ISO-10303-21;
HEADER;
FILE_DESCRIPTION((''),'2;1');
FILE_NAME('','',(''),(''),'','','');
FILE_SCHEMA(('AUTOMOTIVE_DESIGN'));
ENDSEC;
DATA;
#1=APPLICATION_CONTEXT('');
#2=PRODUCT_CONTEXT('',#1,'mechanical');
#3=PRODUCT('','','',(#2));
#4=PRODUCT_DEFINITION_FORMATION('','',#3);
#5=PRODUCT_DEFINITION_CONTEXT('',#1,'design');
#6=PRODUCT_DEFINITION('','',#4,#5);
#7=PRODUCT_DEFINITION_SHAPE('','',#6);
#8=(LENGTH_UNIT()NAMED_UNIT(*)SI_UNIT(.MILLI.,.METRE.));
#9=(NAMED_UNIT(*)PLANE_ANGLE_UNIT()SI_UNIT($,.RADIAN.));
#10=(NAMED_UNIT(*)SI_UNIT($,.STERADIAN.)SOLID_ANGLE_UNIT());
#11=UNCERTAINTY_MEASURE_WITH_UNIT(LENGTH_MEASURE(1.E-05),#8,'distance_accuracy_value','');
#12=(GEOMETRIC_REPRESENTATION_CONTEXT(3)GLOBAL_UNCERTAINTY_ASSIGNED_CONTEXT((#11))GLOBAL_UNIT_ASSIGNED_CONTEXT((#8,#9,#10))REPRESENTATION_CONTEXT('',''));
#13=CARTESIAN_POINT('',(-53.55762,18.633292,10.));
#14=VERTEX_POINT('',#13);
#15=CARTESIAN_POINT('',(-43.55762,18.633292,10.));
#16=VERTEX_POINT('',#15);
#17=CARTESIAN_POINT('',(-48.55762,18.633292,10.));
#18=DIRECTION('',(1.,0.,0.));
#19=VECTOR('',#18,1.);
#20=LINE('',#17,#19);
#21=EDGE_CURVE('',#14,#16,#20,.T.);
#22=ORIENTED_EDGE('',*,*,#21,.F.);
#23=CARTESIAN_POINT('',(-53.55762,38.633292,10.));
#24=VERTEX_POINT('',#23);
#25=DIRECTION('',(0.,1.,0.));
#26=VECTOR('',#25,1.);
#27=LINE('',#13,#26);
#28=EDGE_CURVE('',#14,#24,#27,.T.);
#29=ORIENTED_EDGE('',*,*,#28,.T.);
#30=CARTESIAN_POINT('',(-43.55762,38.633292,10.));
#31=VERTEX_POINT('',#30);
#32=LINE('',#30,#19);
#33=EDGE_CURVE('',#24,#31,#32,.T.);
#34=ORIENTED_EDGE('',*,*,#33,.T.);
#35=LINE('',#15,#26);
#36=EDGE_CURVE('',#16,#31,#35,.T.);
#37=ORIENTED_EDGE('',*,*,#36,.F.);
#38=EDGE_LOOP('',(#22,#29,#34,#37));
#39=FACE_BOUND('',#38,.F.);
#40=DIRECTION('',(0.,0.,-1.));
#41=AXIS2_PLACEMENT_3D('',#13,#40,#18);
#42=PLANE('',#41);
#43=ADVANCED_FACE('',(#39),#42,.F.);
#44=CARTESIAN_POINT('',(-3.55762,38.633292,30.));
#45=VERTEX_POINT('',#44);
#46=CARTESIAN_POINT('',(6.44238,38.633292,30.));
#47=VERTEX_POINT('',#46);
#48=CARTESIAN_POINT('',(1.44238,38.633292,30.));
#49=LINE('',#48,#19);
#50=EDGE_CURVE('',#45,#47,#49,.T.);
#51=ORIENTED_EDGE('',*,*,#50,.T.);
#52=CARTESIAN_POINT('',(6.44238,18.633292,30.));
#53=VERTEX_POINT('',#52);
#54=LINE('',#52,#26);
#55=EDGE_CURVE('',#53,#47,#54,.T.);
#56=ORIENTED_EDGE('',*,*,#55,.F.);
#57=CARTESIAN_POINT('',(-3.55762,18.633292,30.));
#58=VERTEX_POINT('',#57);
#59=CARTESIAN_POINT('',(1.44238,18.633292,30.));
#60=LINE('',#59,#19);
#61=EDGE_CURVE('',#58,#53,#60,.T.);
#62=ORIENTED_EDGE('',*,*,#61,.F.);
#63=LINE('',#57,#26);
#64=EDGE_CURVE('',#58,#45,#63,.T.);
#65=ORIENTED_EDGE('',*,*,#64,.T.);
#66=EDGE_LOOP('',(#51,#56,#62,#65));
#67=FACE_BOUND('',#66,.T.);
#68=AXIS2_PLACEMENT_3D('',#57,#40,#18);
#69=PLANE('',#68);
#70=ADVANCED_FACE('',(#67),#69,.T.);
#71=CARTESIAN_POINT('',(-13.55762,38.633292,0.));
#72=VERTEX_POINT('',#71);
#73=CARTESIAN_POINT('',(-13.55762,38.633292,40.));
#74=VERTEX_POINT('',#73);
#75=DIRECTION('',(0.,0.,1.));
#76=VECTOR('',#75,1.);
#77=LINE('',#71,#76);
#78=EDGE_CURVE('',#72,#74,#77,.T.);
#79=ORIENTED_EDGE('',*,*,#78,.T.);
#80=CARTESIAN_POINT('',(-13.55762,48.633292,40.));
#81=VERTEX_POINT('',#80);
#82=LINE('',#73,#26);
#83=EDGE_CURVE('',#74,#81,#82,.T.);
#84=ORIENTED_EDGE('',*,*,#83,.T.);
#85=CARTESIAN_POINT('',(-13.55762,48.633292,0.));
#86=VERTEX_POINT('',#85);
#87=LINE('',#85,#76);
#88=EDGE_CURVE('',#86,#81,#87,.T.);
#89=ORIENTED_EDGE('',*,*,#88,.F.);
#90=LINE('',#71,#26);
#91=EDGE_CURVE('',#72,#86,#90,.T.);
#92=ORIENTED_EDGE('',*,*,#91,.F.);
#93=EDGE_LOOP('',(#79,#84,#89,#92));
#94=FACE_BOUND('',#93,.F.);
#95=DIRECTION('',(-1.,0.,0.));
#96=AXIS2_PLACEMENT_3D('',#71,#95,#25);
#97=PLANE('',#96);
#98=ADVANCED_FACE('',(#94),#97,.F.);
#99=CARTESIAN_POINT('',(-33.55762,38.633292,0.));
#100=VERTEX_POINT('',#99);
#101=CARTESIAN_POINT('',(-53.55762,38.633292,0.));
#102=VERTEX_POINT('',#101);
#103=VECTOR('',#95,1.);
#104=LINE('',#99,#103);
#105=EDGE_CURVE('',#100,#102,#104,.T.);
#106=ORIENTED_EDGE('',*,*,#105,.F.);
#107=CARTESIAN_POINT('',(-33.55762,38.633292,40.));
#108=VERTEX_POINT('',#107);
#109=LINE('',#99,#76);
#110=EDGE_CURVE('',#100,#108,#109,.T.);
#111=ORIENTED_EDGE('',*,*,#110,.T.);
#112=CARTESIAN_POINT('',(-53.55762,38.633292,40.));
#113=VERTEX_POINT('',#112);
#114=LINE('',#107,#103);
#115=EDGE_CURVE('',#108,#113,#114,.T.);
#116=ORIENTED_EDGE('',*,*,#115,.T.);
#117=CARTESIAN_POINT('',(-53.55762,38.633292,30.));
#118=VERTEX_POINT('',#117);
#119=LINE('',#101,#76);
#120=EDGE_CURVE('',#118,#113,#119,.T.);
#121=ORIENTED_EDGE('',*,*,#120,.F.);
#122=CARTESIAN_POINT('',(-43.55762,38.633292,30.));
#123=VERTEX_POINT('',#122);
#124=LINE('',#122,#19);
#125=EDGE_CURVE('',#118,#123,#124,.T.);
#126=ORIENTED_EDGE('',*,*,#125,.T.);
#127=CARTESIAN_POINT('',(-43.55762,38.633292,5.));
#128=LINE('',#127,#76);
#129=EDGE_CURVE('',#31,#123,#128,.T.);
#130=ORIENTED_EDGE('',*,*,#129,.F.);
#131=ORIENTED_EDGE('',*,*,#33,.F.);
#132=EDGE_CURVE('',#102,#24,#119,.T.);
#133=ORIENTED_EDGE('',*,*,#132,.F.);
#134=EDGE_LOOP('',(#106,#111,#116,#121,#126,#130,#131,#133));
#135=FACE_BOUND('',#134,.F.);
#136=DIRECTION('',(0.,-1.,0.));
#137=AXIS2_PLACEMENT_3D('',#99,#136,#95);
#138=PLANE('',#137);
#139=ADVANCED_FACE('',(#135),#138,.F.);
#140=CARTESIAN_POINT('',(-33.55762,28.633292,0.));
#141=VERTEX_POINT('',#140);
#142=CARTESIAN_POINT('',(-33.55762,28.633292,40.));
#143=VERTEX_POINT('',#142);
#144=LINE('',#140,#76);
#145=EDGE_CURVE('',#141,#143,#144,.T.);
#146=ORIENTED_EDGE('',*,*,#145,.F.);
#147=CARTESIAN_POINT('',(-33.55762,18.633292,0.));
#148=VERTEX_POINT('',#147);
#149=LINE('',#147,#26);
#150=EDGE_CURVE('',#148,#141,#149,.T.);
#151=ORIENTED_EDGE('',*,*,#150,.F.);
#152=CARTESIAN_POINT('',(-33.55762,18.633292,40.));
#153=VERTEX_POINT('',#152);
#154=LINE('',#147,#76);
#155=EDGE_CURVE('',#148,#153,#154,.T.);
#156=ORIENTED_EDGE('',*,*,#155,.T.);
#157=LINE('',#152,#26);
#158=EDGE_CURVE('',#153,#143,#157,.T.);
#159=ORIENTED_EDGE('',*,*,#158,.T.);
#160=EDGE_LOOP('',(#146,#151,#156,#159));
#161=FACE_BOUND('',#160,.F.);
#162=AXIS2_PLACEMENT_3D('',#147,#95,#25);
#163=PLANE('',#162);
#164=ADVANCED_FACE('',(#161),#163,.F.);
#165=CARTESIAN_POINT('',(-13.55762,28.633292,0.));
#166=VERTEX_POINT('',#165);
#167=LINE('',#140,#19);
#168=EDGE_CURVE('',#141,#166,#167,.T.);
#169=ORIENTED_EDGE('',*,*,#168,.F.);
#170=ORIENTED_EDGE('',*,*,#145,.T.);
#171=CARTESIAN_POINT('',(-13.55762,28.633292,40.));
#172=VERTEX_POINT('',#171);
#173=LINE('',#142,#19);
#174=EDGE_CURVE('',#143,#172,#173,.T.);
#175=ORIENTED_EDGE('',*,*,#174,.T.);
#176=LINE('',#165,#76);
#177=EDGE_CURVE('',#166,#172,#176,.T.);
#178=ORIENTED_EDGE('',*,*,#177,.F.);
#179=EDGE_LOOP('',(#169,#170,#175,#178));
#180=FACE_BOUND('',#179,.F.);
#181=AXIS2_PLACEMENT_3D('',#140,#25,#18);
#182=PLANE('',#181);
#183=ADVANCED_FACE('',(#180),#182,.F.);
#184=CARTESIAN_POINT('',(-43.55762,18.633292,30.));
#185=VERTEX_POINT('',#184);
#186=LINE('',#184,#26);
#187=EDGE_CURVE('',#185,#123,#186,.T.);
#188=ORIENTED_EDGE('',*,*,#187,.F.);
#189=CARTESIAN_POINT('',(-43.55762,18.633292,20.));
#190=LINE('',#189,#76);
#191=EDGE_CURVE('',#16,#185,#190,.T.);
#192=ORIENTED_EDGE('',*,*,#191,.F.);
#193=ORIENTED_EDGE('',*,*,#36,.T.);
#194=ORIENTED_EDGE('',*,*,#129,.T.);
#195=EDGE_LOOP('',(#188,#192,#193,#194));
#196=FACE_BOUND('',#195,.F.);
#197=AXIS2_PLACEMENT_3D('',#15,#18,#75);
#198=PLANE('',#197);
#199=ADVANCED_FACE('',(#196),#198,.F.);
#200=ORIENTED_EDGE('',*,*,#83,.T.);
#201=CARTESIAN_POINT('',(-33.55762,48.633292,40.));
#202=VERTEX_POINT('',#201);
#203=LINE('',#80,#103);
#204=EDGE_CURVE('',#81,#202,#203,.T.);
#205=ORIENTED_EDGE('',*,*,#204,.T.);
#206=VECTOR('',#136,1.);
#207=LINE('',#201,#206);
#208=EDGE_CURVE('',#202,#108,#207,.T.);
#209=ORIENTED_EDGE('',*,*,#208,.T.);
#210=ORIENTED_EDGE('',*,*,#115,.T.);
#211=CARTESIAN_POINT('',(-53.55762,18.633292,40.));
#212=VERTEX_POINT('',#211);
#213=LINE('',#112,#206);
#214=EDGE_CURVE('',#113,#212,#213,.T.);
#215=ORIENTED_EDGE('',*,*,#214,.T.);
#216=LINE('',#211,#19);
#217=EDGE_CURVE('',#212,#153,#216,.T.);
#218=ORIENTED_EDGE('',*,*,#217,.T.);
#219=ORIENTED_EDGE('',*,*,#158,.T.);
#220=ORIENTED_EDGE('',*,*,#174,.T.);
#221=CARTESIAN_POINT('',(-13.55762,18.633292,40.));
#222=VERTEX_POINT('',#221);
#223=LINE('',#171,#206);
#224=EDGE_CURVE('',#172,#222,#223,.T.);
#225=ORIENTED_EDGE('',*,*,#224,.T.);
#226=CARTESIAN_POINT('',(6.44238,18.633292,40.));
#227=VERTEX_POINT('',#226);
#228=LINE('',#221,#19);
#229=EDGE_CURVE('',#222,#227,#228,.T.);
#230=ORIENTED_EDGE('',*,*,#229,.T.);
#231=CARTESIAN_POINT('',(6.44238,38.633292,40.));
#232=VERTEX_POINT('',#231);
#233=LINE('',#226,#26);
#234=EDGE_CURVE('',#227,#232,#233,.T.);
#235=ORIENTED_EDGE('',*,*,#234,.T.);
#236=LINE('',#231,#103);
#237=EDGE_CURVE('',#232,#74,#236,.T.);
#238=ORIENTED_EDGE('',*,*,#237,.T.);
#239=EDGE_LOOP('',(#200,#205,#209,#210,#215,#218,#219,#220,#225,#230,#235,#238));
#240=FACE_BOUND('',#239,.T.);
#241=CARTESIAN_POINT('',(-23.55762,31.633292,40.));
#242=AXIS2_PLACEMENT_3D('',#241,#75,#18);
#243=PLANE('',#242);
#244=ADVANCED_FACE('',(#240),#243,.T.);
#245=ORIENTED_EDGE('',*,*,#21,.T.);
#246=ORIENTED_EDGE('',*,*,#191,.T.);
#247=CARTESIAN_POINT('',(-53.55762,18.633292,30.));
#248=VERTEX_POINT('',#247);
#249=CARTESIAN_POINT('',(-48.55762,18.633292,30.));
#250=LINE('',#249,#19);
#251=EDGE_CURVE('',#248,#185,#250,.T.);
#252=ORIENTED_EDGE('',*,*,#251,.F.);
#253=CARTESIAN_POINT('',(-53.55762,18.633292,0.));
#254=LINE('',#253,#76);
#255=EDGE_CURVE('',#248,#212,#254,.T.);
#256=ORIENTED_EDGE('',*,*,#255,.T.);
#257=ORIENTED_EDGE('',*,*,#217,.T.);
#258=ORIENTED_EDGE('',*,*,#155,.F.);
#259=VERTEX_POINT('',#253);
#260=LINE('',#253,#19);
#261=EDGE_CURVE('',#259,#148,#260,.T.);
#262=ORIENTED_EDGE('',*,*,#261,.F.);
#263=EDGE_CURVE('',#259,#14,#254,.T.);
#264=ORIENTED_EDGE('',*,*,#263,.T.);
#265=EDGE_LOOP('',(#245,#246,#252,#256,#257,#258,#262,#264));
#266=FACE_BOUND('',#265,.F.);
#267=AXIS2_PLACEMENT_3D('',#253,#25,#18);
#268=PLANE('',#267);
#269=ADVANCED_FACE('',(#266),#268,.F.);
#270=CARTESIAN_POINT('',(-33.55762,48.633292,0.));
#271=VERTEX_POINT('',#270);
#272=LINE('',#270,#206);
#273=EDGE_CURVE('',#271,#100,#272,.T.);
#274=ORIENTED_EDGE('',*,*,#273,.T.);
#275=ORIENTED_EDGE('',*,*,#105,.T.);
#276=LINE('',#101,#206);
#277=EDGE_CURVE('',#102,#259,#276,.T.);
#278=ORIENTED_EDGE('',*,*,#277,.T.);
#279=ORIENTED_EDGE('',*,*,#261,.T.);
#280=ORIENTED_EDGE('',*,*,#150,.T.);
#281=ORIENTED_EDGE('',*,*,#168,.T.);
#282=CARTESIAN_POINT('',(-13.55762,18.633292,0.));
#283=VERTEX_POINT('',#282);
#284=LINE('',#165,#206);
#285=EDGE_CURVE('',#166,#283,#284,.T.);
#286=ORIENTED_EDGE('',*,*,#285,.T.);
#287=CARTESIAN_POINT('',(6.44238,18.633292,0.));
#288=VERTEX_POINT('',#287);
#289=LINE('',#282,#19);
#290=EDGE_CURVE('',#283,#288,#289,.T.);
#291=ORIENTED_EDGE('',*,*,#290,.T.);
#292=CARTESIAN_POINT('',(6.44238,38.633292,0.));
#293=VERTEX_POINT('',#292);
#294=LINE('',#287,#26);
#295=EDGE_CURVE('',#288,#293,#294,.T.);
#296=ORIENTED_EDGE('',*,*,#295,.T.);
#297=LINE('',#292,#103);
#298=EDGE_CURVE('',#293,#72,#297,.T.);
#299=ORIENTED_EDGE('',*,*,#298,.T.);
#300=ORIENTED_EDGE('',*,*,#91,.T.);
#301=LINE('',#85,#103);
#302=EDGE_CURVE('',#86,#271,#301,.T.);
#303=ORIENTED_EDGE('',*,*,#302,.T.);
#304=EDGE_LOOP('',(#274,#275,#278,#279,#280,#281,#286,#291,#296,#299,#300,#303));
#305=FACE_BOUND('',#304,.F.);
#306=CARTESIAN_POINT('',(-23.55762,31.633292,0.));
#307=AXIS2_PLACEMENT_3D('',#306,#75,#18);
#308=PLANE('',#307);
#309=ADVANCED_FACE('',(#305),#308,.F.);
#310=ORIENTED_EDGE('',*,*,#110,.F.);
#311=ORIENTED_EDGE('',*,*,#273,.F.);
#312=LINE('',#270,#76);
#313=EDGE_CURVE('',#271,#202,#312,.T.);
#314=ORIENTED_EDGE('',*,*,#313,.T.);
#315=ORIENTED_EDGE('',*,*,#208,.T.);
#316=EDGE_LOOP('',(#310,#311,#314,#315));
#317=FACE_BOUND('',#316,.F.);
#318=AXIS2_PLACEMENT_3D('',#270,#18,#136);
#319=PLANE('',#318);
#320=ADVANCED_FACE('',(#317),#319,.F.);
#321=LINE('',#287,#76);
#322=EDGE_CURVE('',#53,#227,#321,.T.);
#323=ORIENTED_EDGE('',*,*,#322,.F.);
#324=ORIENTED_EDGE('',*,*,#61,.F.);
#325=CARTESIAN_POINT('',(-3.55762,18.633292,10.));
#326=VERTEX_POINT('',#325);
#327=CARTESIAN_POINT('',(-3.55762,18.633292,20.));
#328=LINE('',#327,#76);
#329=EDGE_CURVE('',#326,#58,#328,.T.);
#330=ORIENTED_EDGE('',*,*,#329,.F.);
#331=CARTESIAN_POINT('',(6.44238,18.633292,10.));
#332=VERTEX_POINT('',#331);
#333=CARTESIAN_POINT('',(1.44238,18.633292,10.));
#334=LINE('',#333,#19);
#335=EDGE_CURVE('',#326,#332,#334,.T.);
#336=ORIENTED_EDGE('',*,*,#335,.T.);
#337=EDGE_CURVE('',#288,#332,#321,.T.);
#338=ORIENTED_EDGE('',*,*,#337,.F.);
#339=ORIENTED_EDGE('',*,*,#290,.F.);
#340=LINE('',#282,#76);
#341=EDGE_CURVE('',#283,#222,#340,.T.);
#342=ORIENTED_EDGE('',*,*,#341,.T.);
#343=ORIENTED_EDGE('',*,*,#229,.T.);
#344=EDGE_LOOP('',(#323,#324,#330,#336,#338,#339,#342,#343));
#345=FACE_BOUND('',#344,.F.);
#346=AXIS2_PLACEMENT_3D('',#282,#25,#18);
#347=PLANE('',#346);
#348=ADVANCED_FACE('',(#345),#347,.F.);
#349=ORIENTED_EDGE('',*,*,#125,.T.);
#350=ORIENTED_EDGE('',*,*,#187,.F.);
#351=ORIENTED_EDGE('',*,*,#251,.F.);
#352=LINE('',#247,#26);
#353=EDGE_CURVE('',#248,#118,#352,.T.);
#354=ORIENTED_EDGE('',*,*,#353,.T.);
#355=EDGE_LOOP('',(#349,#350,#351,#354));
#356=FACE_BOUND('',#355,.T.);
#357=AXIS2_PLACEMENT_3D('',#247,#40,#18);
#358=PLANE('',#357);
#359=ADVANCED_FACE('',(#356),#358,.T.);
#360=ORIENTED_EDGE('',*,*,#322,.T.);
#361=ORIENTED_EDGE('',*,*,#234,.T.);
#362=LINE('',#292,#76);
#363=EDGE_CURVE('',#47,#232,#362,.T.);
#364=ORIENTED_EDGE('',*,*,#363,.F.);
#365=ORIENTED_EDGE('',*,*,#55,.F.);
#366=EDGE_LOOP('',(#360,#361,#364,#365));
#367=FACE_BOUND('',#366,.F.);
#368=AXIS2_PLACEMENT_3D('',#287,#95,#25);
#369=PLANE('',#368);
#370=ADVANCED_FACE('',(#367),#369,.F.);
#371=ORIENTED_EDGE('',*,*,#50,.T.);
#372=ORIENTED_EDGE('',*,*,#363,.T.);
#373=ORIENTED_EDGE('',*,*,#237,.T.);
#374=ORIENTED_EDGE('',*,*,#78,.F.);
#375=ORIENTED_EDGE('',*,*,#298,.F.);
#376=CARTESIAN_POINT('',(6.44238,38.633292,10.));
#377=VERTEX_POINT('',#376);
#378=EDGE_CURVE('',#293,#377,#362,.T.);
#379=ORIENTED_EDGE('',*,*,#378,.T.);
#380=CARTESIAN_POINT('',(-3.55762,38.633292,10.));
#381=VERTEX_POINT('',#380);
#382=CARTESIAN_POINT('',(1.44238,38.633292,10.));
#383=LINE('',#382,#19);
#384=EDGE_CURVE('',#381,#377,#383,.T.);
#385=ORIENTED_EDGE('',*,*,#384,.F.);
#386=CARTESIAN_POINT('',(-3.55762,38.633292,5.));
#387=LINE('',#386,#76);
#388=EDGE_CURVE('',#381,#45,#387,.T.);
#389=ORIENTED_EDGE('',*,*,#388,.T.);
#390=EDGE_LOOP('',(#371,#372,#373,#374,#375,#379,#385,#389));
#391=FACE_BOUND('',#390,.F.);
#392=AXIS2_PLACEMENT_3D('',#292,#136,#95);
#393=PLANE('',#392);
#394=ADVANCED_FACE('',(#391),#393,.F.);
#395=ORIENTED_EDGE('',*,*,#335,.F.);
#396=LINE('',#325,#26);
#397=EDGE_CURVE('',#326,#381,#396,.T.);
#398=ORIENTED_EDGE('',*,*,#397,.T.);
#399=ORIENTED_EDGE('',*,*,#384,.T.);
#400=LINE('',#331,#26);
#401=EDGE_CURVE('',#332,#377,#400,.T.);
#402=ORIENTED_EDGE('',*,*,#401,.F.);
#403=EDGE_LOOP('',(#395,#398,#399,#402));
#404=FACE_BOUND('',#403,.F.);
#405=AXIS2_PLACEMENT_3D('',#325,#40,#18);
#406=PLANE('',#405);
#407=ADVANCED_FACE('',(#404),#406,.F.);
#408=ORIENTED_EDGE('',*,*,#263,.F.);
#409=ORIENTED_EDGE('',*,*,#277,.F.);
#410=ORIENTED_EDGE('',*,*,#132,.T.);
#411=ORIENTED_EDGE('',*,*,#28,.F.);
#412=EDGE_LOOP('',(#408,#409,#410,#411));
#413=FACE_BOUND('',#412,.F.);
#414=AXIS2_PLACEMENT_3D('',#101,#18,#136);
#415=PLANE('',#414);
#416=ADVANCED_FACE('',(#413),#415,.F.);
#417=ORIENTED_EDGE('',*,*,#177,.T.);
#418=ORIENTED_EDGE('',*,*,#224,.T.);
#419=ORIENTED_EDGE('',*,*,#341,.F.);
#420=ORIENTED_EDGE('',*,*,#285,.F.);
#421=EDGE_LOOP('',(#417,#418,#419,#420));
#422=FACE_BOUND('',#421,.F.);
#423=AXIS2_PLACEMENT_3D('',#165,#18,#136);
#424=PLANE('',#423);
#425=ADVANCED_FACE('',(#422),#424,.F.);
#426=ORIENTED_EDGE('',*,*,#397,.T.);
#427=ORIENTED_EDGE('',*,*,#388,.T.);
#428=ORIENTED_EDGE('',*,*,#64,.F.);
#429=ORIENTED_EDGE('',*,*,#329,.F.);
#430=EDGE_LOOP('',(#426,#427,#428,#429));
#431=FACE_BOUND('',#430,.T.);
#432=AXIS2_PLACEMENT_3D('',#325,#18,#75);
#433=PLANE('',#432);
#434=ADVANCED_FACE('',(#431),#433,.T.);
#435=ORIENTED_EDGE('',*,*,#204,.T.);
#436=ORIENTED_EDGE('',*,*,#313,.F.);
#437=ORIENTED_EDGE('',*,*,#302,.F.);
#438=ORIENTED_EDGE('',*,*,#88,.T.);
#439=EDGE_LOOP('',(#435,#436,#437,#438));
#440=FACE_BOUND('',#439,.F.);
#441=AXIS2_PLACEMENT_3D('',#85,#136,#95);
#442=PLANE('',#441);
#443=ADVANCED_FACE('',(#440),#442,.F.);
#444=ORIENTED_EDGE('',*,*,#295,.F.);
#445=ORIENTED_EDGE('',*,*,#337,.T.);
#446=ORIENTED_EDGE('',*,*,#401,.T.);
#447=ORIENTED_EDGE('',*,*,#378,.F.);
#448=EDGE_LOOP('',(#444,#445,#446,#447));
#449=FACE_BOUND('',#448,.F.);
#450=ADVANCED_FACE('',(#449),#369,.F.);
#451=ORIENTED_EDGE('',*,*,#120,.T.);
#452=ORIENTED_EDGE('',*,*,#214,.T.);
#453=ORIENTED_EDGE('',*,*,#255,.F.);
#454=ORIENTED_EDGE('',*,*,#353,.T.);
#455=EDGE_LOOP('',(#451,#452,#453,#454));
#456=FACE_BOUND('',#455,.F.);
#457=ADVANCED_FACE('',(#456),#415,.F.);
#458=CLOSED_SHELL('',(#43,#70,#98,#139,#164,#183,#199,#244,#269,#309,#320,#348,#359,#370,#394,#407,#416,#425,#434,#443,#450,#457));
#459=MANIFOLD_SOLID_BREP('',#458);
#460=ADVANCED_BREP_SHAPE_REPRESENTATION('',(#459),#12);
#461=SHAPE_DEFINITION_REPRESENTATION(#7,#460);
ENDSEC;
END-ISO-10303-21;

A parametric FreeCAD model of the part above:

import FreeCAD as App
import Part
import Sketcher

V = App.Vector
Q = App.Units.Quantity

doc = App.newDocument("Part")
body = doc.addObject("PartDesign::Body", "Body")

sketch1 = body.newObject("Sketcher::SketchObject", "Sketch")
sketch1.AttachmentSupport = (doc.getObject("XY_Plane"), [""])
sketch1.MapMode = "FlatFace"
sketch1.addGeometry([
    Part.LineSegment(V(-34, 39, 0), V(-54, 39, 0)),
    Part.LineSegment(V(-54, 39, 0), V(-54, 19, 0)),
    Part.LineSegment(V(-54, 19, 0), V(-34, 19, 0)),
    Part.LineSegment(V(-34, 19, 0), V(-34, 29, 0)),
    Part.LineSegment(V(-34, 29, 0), V(-14, 29, 0)),
    Part.LineSegment(V(-14, 29, 0), V(-14, 19, 0)),
    Part.LineSegment(V(-14, 19, 0), V(6, 19, 0)),
    Part.LineSegment(V(6, 19, 0), V(6, 39, 0)),
    Part.LineSegment(V(6, 39, 0), V(-14, 39, 0)),
    Part.LineSegment(V(-14, 39, 0), V(-14, 49, 0)),
    Part.LineSegment(V(-14, 49, 0), V(-34, 49, 0)),
    Part.LineSegment(V(-34, 49, 0), V(-34, 39, 0)),
], False)
sketch1.addConstraint([
    Sketcher.Constraint("Coincident", 0, 2, 1, 1),
    Sketcher.Constraint("Coincident", 1, 2, 2, 1),
    Sketcher.Constraint("Coincident", 2, 2, 3, 1),
    Sketcher.Constraint("Coincident", 3, 2, 4, 1),
    Sketcher.Constraint("Coincident", 4, 2, 5, 1),
    Sketcher.Constraint("Coincident", 5, 2, 6, 1),
    Sketcher.Constraint("Coincident", 6, 2, 7, 1),
    Sketcher.Constraint("Coincident", 7, 2, 8, 1),
    Sketcher.Constraint("Coincident", 8, 2, 9, 1),
    Sketcher.Constraint("Coincident", 9, 2, 10, 1),
    Sketcher.Constraint("Coincident", 10, 2, 11, 1),
    Sketcher.Constraint("Coincident", 11, 2, 0, 1),
    Sketcher.Constraint("Horizontal", 0),
    Sketcher.Constraint("Vertical", 1),
    Sketcher.Constraint("Horizontal", 2),
    Sketcher.Constraint("Vertical", 3),
    Sketcher.Constraint("Horizontal", 4),
    Sketcher.Constraint("Vertical", 5),
    Sketcher.Constraint("Horizontal", 6),
    Sketcher.Constraint("Vertical", 7),
    Sketcher.Constraint("Horizontal", 8),
    Sketcher.Constraint("Vertical", 9),
    Sketcher.Constraint("Horizontal", 10),
    Sketcher.Constraint("Vertical", 11),
    Sketcher.Constraint("Horizontal", 2, 2, 5, 2),
    Sketcher.Constraint("Horizontal", 0, 2, 7, 2),
    Sketcher.Constraint("Vertical", 5, 2, 8, 2),
    Sketcher.Constraint("Vertical", 3, 2, 10, 2),
    Sketcher.Constraint("Equal", 2, 4),
    Sketcher.Constraint("Equal", 4, 6),
    Sketcher.Constraint("Equal", 10, 1),
    Sketcher.Constraint("Equal", 5, 9),
    Sketcher.Constraint("DistanceX", 0, 2, 0, 1, Q("20 mm")),
    Sketcher.Constraint("DistanceY", 3, 1, 3, 2, Q("10 mm")),
    Sketcher.Constraint("DistanceX", 0, 2, -1, 1, Q("53.55762 mm")),
    Sketcher.Constraint("DistanceY", -1, 1, 0, 2, Q("38.633292 mm")),
])
pad1 = body.newObject("PartDesign::Pad", "Pad")
pad1.Profile = sketch1
pad1.Length = 40

sketch2 = body.newObject("Sketcher::SketchObject", "Sketch001")
sketch2.AttachmentSupport = (doc.getObject("XZ_Plane"), [""])
sketch2.MapMode = "FlatFace"
sketch2.AttachmentOffset = App.Placement(V(0, 0, -18.633292), App.Rotation())
sketch2.addGeometry([
    Part.LineSegment(V(-54, 30, 0), V(-54, 10, 0)),
    Part.LineSegment(V(-54, 10, 0), V(-44, 10, 0)),
    Part.LineSegment(V(-44, 10, 0), V(-44, 30, 0)),
    Part.LineSegment(V(-44, 30, 0), V(-54, 30, 0)),
], False)
sketch2.addConstraint([
    Sketcher.Constraint("Coincident", 0, 2, 1, 1),
    Sketcher.Constraint("Coincident", 1, 2, 2, 1),
    Sketcher.Constraint("Coincident", 2, 2, 3, 1),
    Sketcher.Constraint("Coincident", 3, 2, 0, 1),
    Sketcher.Constraint("Vertical", 0),
    Sketcher.Constraint("Horizontal", 1),
    Sketcher.Constraint("Vertical", 2),
    Sketcher.Constraint("Horizontal", 3),
    Sketcher.Constraint("DistanceX", 1, 1, 1, 2, Q("10 mm")),
    Sketcher.Constraint("DistanceY", 0, 2, 0, 1, Q("20 mm")),
    Sketcher.Constraint("DistanceY", -1, 1, 0, 2, Q("10 mm")),
    Sketcher.Constraint("DistanceX", 0, 2, -1, 1, Q("53.55762 mm")),
])
pocket1 = body.newObject("PartDesign::Pocket", "Pocket")
pocket1.Profile = sketch2
pocket1.Type = "ThroughAll"

sketch3 = body.newObject("Sketcher::SketchObject", "Sketch002")
sketch3.AttachmentSupport = (doc.getObject("XZ_Plane"), [""])
sketch3.MapMode = "FlatFace"
sketch3.AttachmentOffset = App.Placement(V(0, 0, -18.633292), App.Rotation())
sketch3.addGeometry([
    Part.LineSegment(V(-4, 30, 0), V(-4, 10, 0)),
    Part.LineSegment(V(-4, 10, 0), V(6, 10, 0)),
    Part.LineSegment(V(6, 10, 0), V(6, 30, 0)),
    Part.LineSegment(V(6, 30, 0), V(-4, 30, 0)),
], False)
sketch3.addConstraint([
    Sketcher.Constraint("Coincident", 0, 2, 1, 1),
    Sketcher.Constraint("Coincident", 1, 2, 2, 1),
    Sketcher.Constraint("Coincident", 2, 2, 3, 1),
    Sketcher.Constraint("Coincident", 3, 2, 0, 1),
    Sketcher.Constraint("Vertical", 0),
    Sketcher.Constraint("Horizontal", 1),
    Sketcher.Constraint("Vertical", 2),
    Sketcher.Constraint("Horizontal", 3),
    Sketcher.Constraint("DistanceX", 1, 1, 1, 2, Q("10 mm")),
    Sketcher.Constraint("DistanceY", 0, 2, 0, 1, Q("20 mm")),
    Sketcher.Constraint("DistanceY", -1, 1, 0, 2, Q("10 mm")),
    Sketcher.Constraint("DistanceX", 0, 2, -1, 1, Q("3.55762 mm")),
])
pocket2 = body.newObject("PartDesign::Pocket", "Pocket001")
pocket2.Profile = sketch3
pocket2.Type = "ThroughAll"

doc.recompute()
